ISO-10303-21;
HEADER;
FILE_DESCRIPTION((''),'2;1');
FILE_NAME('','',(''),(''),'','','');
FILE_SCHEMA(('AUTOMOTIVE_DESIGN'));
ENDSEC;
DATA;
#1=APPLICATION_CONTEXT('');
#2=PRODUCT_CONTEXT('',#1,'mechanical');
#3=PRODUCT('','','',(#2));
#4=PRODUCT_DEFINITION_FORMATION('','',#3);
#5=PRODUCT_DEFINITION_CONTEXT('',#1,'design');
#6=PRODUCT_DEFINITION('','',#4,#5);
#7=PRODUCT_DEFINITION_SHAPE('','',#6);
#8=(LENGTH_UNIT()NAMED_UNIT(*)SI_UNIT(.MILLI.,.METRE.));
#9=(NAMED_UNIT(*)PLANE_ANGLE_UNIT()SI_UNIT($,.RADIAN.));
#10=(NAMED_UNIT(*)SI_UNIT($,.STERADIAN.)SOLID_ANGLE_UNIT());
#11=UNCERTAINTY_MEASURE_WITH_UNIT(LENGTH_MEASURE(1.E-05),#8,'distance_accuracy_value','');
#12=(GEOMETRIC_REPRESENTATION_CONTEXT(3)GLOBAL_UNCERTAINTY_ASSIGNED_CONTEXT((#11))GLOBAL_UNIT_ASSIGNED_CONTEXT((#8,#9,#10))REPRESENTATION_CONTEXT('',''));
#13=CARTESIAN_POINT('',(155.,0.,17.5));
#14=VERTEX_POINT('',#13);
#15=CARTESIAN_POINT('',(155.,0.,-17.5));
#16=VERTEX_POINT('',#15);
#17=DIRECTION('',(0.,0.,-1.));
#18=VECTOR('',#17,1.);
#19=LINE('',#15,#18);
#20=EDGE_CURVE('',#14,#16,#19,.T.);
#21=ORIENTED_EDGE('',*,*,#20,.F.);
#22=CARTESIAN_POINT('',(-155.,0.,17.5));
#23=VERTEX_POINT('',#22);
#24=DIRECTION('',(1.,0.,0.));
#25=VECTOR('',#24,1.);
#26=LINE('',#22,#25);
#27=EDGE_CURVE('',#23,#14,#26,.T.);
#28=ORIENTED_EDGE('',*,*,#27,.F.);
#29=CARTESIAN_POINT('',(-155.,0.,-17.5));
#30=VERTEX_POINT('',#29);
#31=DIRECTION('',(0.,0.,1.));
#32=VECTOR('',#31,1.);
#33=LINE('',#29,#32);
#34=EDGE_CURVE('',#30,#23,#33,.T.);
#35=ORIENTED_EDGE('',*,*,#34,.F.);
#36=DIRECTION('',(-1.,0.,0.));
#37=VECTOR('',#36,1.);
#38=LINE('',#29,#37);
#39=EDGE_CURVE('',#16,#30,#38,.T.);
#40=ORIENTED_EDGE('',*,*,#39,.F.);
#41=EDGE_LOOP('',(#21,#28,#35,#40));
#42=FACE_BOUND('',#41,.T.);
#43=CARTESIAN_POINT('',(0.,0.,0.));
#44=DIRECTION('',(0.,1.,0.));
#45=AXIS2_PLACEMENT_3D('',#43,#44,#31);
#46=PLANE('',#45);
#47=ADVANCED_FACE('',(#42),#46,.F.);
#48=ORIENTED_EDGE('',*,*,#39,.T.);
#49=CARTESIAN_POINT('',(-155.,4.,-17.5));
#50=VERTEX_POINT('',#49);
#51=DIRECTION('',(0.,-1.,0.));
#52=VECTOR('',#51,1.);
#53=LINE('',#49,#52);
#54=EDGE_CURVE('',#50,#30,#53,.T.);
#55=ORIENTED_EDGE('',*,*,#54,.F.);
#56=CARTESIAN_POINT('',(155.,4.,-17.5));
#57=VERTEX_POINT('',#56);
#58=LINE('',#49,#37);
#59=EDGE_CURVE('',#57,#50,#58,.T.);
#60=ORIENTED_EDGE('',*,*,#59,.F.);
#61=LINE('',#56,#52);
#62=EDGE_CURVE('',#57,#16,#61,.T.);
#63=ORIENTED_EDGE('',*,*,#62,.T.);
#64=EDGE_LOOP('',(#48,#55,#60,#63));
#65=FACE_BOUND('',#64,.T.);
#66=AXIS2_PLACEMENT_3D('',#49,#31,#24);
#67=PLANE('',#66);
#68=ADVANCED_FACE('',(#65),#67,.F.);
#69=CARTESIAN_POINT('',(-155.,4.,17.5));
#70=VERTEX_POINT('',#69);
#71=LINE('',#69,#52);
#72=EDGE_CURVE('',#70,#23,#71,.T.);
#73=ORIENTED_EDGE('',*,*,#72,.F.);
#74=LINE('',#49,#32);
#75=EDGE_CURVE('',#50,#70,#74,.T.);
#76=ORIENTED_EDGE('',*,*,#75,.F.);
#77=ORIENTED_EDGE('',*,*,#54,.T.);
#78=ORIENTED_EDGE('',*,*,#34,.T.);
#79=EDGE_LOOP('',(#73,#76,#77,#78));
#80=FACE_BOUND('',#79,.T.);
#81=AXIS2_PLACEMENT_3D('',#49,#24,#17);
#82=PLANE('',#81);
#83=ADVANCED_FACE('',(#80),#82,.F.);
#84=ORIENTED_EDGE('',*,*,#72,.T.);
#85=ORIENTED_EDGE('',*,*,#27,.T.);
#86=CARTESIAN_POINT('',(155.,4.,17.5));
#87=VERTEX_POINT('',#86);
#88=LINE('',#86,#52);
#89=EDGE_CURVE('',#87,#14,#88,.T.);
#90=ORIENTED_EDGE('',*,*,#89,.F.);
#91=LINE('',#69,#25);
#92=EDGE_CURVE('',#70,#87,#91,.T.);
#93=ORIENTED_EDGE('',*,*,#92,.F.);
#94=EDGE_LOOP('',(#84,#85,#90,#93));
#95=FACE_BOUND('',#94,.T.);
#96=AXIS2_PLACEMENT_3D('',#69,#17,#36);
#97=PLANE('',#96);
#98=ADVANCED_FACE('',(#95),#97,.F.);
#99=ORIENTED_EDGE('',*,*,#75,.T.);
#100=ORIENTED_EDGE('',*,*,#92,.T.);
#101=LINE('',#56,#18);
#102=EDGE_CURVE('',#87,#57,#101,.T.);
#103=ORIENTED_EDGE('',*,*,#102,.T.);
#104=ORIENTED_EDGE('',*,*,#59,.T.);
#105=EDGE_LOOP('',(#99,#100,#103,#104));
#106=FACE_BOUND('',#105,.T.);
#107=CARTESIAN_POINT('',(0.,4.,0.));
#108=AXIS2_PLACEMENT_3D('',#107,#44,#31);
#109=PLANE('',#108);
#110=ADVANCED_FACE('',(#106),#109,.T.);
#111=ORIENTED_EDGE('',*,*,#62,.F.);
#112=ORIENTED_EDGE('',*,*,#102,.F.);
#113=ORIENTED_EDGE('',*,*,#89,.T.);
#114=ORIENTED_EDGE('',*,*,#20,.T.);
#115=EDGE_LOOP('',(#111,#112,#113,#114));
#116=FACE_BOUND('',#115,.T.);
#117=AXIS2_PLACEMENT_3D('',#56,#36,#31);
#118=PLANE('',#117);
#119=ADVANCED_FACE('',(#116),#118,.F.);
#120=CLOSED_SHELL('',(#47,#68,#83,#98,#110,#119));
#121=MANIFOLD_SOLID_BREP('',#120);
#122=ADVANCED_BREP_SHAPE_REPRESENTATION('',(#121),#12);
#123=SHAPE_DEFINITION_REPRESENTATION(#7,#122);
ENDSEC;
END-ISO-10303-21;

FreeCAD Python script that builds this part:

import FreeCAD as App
import Part
import Sketcher

doc = App.newDocument("Part")
body = doc.addObject("PartDesign::Body", "Body")

sketch1 = body.newObject("Sketcher::SketchObject", "Sketch")
sketch1.AttachmentSupport = (doc.getObject("XZ_Plane"), [""])
sketch1.MapMode = "FlatFace"
sketch1.addGeometry(Part.LineSegment(App.Vector(-155, -17.5, 0), App.Vector(-155, 17.5, 0)), False)
sketch1.addGeometry(Part.LineSegment(App.Vector(-155, 17.5, 0), App.Vector(155, 17.5, 0)), False)
sketch1.addGeometry(Part.LineSegment(App.Vector(155, 17.5, 0), App.Vector(155, -17.5, 0)), False)
sketch1.addGeometry(Part.LineSegment(App.Vector(155, -17.5, 0), App.Vector(-155, -17.5, 0)), False)
sketch1.addConstraint(Sketcher.Constraint("Coincident", 0, 2, 1, 1))
sketch1.addConstraint(Sketcher.Constraint("Coincident", 1, 2, 2, 1))
sketch1.addConstraint(Sketcher.Constraint("Coincident", 2, 2, 3, 1))
sketch1.addConstraint(Sketcher.Constraint("Coincident", 3, 2, 0, 1))
sketch1.addConstraint(Sketcher.Constraint("Vertical", 0))
sketch1.addConstraint(Sketcher.Constraint("Horizontal", 1))
sketch1.addConstraint(Sketcher.Constraint("Vertical", 2))
sketch1.addConstraint(Sketcher.Constraint("Horizontal", 3))
sketch1.addConstraint(Sketcher.Constraint("Symmetric", 0, 2, 2, 2, -1, 1))
sketch1.addConstraint(Sketcher.Constraint("DistanceX", 1, 1, 1, 2, 310.0))
sketch1.addConstraint(Sketcher.Constraint("DistanceY", 0, 1, 0, 2, 35.0))
pad1 = body.newObject("PartDesign::Pad", "Pad")
pad1.Profile = sketch1
pad1.Length = 4
pad1.Reversed = True

doc.recompute()
